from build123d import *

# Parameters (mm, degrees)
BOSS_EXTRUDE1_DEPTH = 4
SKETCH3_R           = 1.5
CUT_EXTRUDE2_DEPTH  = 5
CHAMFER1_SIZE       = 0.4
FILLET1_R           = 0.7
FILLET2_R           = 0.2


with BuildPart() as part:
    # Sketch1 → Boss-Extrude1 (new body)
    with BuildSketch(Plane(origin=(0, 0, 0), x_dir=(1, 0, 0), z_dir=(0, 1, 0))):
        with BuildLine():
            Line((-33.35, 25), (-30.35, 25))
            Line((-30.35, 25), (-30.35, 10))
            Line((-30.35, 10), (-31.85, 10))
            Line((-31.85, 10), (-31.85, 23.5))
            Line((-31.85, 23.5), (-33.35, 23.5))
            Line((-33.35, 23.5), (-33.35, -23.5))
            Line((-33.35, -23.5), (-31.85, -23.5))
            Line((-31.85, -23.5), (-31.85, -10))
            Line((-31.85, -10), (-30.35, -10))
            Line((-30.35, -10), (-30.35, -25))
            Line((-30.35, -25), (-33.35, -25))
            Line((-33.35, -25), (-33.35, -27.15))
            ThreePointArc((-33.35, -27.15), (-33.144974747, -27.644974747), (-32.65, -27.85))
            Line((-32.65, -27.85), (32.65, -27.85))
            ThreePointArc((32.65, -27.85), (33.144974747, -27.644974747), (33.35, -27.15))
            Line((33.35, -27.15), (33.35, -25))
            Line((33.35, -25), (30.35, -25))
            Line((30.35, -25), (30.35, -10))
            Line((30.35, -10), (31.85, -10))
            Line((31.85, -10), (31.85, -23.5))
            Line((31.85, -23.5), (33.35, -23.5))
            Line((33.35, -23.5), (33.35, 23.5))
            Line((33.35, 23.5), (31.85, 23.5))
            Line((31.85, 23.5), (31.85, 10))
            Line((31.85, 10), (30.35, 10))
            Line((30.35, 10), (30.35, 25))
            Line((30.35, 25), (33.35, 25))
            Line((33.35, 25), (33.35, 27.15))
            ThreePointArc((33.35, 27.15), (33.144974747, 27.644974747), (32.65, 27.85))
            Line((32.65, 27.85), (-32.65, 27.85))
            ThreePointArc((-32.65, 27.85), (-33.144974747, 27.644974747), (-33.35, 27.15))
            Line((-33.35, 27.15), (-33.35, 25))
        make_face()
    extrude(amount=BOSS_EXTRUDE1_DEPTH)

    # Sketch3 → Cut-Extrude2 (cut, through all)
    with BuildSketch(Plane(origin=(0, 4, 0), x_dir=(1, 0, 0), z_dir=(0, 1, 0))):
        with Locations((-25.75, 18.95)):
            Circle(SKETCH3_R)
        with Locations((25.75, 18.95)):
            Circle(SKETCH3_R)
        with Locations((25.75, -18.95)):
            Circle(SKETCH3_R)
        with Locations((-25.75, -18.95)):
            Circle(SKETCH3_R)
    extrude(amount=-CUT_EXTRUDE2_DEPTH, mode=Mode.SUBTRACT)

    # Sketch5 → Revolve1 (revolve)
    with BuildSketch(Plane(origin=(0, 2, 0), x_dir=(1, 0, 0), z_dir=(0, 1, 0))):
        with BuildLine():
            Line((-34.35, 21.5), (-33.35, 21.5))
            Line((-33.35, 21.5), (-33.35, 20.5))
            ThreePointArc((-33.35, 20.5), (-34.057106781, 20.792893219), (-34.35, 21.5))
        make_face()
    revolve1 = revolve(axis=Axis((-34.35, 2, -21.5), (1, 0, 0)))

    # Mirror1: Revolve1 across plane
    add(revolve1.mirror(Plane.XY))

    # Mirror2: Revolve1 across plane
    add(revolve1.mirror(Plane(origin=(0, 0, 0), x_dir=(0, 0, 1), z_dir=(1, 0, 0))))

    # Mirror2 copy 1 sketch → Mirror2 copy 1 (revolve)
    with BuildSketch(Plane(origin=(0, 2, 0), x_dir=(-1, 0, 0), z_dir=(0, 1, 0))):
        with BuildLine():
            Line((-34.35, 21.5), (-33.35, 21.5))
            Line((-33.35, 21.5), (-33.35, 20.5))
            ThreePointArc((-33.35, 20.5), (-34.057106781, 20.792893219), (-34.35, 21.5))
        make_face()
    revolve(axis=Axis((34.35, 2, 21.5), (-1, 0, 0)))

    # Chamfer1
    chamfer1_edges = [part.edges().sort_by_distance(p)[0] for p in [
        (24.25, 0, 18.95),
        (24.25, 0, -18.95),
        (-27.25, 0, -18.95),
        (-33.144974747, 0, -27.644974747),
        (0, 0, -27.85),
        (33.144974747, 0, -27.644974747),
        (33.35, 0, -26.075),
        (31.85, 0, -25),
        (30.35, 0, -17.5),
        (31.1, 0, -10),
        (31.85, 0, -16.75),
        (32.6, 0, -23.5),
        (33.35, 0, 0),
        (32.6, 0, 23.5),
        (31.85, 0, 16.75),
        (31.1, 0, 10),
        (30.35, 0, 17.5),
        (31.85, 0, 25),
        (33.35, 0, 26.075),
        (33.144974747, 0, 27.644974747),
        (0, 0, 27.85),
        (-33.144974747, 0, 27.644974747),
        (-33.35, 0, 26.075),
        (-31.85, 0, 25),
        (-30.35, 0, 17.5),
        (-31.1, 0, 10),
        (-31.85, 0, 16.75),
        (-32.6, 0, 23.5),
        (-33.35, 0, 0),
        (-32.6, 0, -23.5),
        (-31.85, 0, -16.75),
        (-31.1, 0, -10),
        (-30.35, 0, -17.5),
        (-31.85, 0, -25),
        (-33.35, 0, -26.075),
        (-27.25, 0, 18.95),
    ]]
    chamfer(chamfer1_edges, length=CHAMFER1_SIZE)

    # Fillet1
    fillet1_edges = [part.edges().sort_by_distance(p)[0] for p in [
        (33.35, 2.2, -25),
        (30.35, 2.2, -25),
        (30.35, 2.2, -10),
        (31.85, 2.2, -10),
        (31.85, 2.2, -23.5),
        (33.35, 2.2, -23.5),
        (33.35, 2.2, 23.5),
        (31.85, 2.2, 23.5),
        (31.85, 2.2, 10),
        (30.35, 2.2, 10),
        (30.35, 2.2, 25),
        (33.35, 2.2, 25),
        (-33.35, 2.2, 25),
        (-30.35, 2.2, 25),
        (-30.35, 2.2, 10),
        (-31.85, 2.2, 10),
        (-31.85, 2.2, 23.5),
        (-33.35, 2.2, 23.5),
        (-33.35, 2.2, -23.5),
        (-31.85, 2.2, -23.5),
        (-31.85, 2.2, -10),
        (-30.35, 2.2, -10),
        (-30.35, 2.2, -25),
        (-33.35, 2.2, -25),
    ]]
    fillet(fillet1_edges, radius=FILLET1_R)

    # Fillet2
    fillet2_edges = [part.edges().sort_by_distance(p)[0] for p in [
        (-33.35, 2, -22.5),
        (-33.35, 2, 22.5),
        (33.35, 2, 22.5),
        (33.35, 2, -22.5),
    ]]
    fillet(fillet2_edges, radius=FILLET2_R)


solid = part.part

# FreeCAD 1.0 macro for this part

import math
import FreeCAD as App
import Part
import Sketcher
from FreeCAD import Vector
Q = App.Units.Quantity


def edges_at(feature, points):
    """Names of the edges that pass closest to the given points."""
    edges = feature.Shape.Edges
    near = lambda p: min(range(len(edges)), key=lambda i: edges[i].distToShape(Part.Vertex(*p))[0])
    return sorted({f"Edge{near(p) + 1}" for p in points})

doc = App.newDocument("Part")
body = doc.addObject("PartDesign::Body", "Body")

# Sketch on XZ plane
sketch1 = body.newObject("Sketcher::SketchObject", "Sketch")
sketch1.AttachmentSupport = (doc.getObject("XZ_Plane"), [""])
sketch1.MapMode = "FlatFace"
sketch1.addGeometry(Part.LineSegment(Vector(-33.4, -25, 0), Vector(-30.4, -25, 0)), False)
sketch1.addGeometry(Part.LineSegment(Vector(-30.4, -25, 0), Vector(-30.4, -10, 0)), False)
sketch1.addGeometry(Part.LineSegment(Vector(-30.4, -10, 0), Vector(-31.9, -10, 0)), False)
sketch1.addGeometry(Part.LineSegment(Vector(-31.9, -10, 0), Vector(-31.9, -23.5, 0)), False)
sketch1.addGeometry(Part.LineSegment(Vector(-31.9, -23.5, 0), Vector(-33.4, -23.5, 0)), False)
sketch1.addGeometry(Part.LineSegment(Vector(-33.4, -23.5, 0), Vector(-33.4, 23.5, 0)), False)
sketch1.addGeometry(Part.LineSegment(Vector(-33.4, 23.5, 0), Vector(-31.9, 23.5, 0)), False)
sketch1.addGeometry(Part.LineSegment(Vector(-31.9, 23.5, 0), Vector(-31.9, 10, 0)), False)
sketch1.addGeometry(Part.LineSegment(Vector(-31.9, 10, 0), Vector(-30.4, 10, 0)), False)
sketch1.addGeometry(Part.LineSegment(Vector(-30.4, 10, 0), Vector(-30.4, 25, 0)), False)
sketch1.addGeometry(Part.LineSegment(Vector(-30.4, 25, 0), Vector(-33.4, 25, 0)), False)
sketch1.addGeometry(Part.LineSegment(Vector(-33.4, 25, 0), Vector(-33.4, 27.1, 0)), False)
sketch1.addGeometry(Part.ArcOfCircle(Part.Circle(Vector(-32.7, 27.2, 0), Vector(0, 0, 1), 0.7), math.radians(90), math.radians(180)), False)
sketch1.addGeometry(Part.LineSegment(Vector(-32.6, 27.9, 0), Vector(32.6, 27.9, 0)), False)
sketch1.addGeometry(Part.ArcOfCircle(Part.Circle(Vector(32.7, 27.2, 0), Vector(0, 0, 1), 0.7), math.radians(0), math.radians(90)), False)
sketch1.addGeometry(Part.LineSegment(Vector(33.4, 27.1, 0), Vector(33.4, 25, 0)), False)
sketch1.addGeometry(Part.LineSegment(Vector(33.4, 25, 0), Vector(30.4, 25, 0)), False)
sketch1.addGeometry(Part.LineSegment(Vector(30.4, 25, 0), Vector(30.4, 10, 0)), False)
sketch1.addGeometry(Part.LineSegment(Vector(30.4, 10, 0), Vector(31.9, 10, 0)), False)
sketch1.addGeometry(Part.LineSegment(Vector(31.9, 10, 0), Vector(31.9, 23.5, 0)), False)
sketch1.addGeometry(Part.LineSegment(Vector(31.9, 23.5, 0), Vector(33.4, 23.5, 0)), False)
sketch1.addGeometry(Part.LineSegment(Vector(33.4, 23.5, 0), Vector(33.4, -23.5, 0)), False)
sketch1.addGeometry(Part.LineSegment(Vector(33.4, -23.5, 0), Vector(31.9, -23.5, 0)), False)
sketch1.addGeometry(Part.LineSegment(Vector(31.9, -23.5, 0), Vector(31.9, -10, 0)), False)
sketch1.addGeometry(Part.LineSegment(Vector(31.9, -10, 0), Vector(30.4, -10, 0)), False)
sketch1.addGeometry(Part.LineSegment(Vector(30.4, -10, 0), Vector(30.4, -25, 0)), False)
sketch1.addGeometry(Part.LineSegment(Vector(30.4, -25, 0), Vector(33.4, -25, 0)), False)
sketch1.addGeometry(Part.LineSegment(Vector(33.4, -25, 0), Vector(33.4, -27.1, 0)), False)
sketch1.addGeometry(Part.ArcOfCircle(Part.Circle(Vector(32.7, -27.2, 0), Vector(0, 0, 1), 0.7), math.radians(-90), math.radians(0)), False)
sketch1.addGeometry(Part.LineSegment(Vector(32.6, -27.9, 0), Vector(-32.6, -27.9, 0)), False)
sketch1.addGeometry(Part.ArcOfCircle(Part.Circle(Vector(-32.7, -27.2, 0), Vector(0, 0, 1), 0.7), math.radians(180), math.radians(270)), False)
sketch1.addGeometry(Part.LineSegment(Vector(-33.4, -27.1, 0), Vector(-33.4, -25, 0)), False)
sketch1.addConstraint(Sketcher.Constraint("Coincident", 0, 2, 1, 1))
sketch1.addConstraint(Sketcher.Constraint("Coincident", 1, 2, 2, 1))
sketch1.addConstraint(Sketcher.Constraint("Coincident", 2, 2, 3, 1))
sketch1.addConstraint(Sketcher.Constraint("Coincident", 3, 2, 4, 1))
sketch1.addConstraint(Sketcher.Constraint("Coincident", 4, 2, 5, 1))
sketch1.addConstraint(Sketcher.Constraint("Coincident", 5, 2, 6, 1))
sketch1.addConstraint(Sketcher.Constraint("Coincident", 6, 2, 7, 1))
sketch1.addConstraint(Sketcher.Constraint("Coincident", 7, 2, 8, 1))
sketch1.addConstraint(Sketcher.Constraint("Coincident", 8, 2, 9, 1))
sketch1.addConstraint(Sketcher.Constraint("Coincident", 9, 2, 10, 1))
sketch1.addConstraint(Sketcher.Constraint("Coincident", 10, 2, 11, 1))
sketch1.addConstraint(Sketcher.Constraint("Tangent", 11, 2, 12, 2))
sketch1.addConstraint(Sketcher.Constraint("Tangent", 12, 1, 13, 1))
sketch1.addConstraint(Sketcher.Constraint("Tangent", 13, 2, 14, 2))
sketch1.addConstraint(Sketcher.Constraint("Tangent", 14, 1, 15, 1))
sketch1.addConstraint(Sketcher.Constraint("Coincident", 15, 2, 16, 1))
sketch1.addConstraint(Sketcher.Constraint("Coincident", 16, 2, 17, 1))
sketch1.addConstraint(Sketcher.Constraint("Coincident", 17, 2, 18, 1))
sketch1.addConstraint(Sketcher.Constraint("Coincident", 18, 2, 19, 1))
sketch1.addConstraint(Sketcher.Constraint("Coincident", 19, 2, 20, 1))
sketch1.addConstraint(Sketcher.Constraint("Coincident", 20, 2, 21, 1))
sketch1.addConstraint(Sketcher.Constraint("Coincident", 21, 2, 22, 1))
sketch1.addConstraint(Sketcher.Constraint("Coincident", 22, 2, 23, 1))
sketch1.addConstraint(Sketcher.Constraint("Coincident", 23, 2, 24, 1))
sketch1.addConstraint(Sketcher.Constraint("Coincident", 24, 2, 25, 1))
sketch1.addConstraint(Sketcher.Constraint("Coincident", 25, 2, 26, 1))
sketch1.addConstraint(Sketcher.Constraint("Coincident", 26, 2, 27, 1))
sketch1.addConstraint(Sketcher.Constraint("Tangent", 27, 2, 28, 2))
sketch1.addConstraint(Sketcher.Constraint("Tangent", 28, 1, 29, 1))
sketch1.addConstraint(Sketcher.Constraint("Tangent", 29, 2, 30, 2))
sketch1.addConstraint(Sketcher.Constraint("Tangent", 30, 1, 31, 1))
sketch1.addConstraint(Sketcher.Constraint("Coincident", 31, 2, 0, 1))
sketch1.addConstraint(Sketcher.Constraint("Horizontal", 0))
sketch1.addConstraint(Sketcher.Constraint("Vertical", 1))
sketch1.addConstraint(Sketcher.Constraint("Horizontal", 2))
sketch1.addConstraint(Sketcher.Constraint("Vertical", 3))
sketch1.addConstraint(Sketcher.Constraint("Horizontal", 4))
sketch1.addConstraint(Sketcher.Constraint("Vertical", 5))
sketch1.addConstraint(Sketcher.Constraint("Horizontal", 6))
sketch1.addConstraint(Sketcher.Constraint("Vertical", 7))
sketch1.addConstraint(Sketcher.Constraint("Horizontal", 8))
sketch1.addConstraint(Sketcher.Constraint("Vertical", 9))
sketch1.addConstraint(Sketcher.Constraint("Horizontal", 10))
sketch1.addConstraint(Sketcher.Constraint("Vertical", 11))
sketch1.addConstraint(Sketcher.Constraint("Horizontal", 13))
sketch1.addConstraint(Sketcher.Constraint("Vertical", 15))
sketch1.addConstraint(Sketcher.Constraint("Horizontal", 16))
sketch1.addConstraint(Sketcher.Constraint("Vertical", 17))
sketch1.addConstraint(Sketcher.Constraint("Horizontal", 18))
sketch1.addConstraint(Sketcher.Constraint("Vertical", 19))
sketch1.addConstraint(Sketcher.Constraint("Horizontal", 20))
sketch1.addConstraint(Sketcher.Constraint("Vertical", 21))
sketch1.addConstraint(Sketcher.Constraint("Horizontal", 22))
sketch1.addConstraint(Sketcher.Constraint("Vertical", 23))
sketch1.addConstraint(Sketcher.Constraint("Horizontal", 24))
sketch1.addConstraint(Sketcher.Constraint("Vertical", 25))
sketch1.addConstraint(Sketcher.Constraint("Horizontal", 26))
sketch1.addConstraint(Sketcher.Constraint("Vertical", 27))
sketch1.addConstraint(Sketcher.Constraint("Horizontal", 29))
sketch1.addConstraint(Sketcher.Constraint("Vertical", 31))
sketch1.addConstraint(Sketcher.Constraint("Equal", 12, 14))
sketch1.addConstraint(Sketcher.Constraint("Equal", 14, 28))
sketch1.addConstraint(Sketcher.Constraint("Equal", 28, 30))
sketch1.addConstraint(Sketcher.Constraint("Symmetric", 12, 3, 28, 3, -1, 1))
sketch1.addConstraint(Sketcher.Constraint("Symmetric", 0, 2, 16, 2, -1, 1))
sketch1.addConstraint(Sketcher.Constraint("Symmetric", 2, 2, 18, 2, -1, 1))
sketch1.addConstraint(Sketcher.Constraint("Symmetric", 4, 2, 20, 2, -1, 1))
sketch1.addConstraint(Sketcher.Constraint("Symmetric", 6, 2, 22, 2, -1, 1))
sketch1.addConstraint(Sketcher.Constraint("Symmetric", 8, 2, 24, 2, -1, 1))
sketch1.addConstraint(Sketcher.Constraint("Symmetric", 10, 2, 15, 2, -2))
sketch1.addConstraint(Sketcher.Constraint("Symmetric", 8, 2, 17, 2, -2))
sketch1.addConstraint(Sketcher.Constraint("Symmetric", 6, 2, 19, 2, -2))
sketch1.addConstraint(Sketcher.Constraint("Symmetric", 26, 2, 31, 2, -2))
sketch1.addConstraint(Sketcher.Constraint("Vertical", 5, 2, 10, 2))
sketch1.addConstraint(Sketcher.Constraint("Equal", 2, 4))
sketch1.addConstraint(Sketcher.Constraint("Radius", 12, Q("0.7 mm")))
sketch1.addConstraint(Sketcher.Constraint("DistanceX", 0, 1, 0, 2, Q("3 mm")))
sketch1.addConstraint(Sketcher.Constraint("DistanceY", 1, 1, 1, 2, Q("15 mm")))
sketch1.addConstraint(Sketcher.Constraint("DistanceY", 5, 1, 5, 2, Q("47 mm")))
sketch1.addConstraint(Sketcher.Constraint("DistanceX", 13, 1, 13, 2, Q("65.3 mm")))
sketch1.addConstraint(Sketcher.Constraint("DistanceY", 3, 2, 3, 1, Q("13.5 mm")))
sketch1.addConstraint(Sketcher.Constraint("DistanceY", 28, 3, 13, 2, Q("55 mm")))
pad1 = body.newObject("PartDesign::Pad", "Pad")
pad1.Profile = sketch1
pad1.Length = 4
pad1.Reversed = True

# Sketch on XZ plane
sketch2 = body.newObject("Sketcher::SketchObject", "Sketch001")
sketch2.AttachmentSupport = (doc.getObject("XZ_Plane"), [""])
sketch2.MapMode = "FlatFace"
sketch2.AttachmentOffset = App.Placement(Vector(0, 0, -4), App.Rotation())
sketch2.addGeometry(Part.Circle(Vector(-25.8, -18.9, 0), Vector(0, 0, 1), 1.5), False)
sketch2.addGeometry(Part.Circle(Vector(25.8, -18.9, 0), Vector(0, 0, 1), 1.5), False)
sketch2.addGeometry(Part.Circle(Vector(25.8, 18.9, 0), Vector(0, 0, 1), 1.5), False)
sketch2.addGeometry(Part.Circle(Vector(-25.8, 18.9, 0), Vector(0, 0, 1), 1.5), False)
sketch2.addConstraint(Sketcher.Constraint("Equal", 0, 1))
sketch2.addConstraint(Sketcher.Constraint("Equal", 1, 2))
sketch2.addConstraint(Sketcher.Constraint("Equal", 2, 3))
sketch2.addConstraint(Sketcher.Constraint("Symmetric", 0, 3, 2, 3, -1, 1))
sketch2.addConstraint(Sketcher.Constraint("Symmetric", 1, 3, 3, 3, -1, 1))
sketch2.addConstraint(Sketcher.Constraint("Symmetric", 0, 3, 1, 3, -2))
sketch2.addConstraint(Sketcher.Constraint("Diameter", 0, Q("3 mm")))
sketch2.addConstraint(Sketcher.Constraint("DistanceX", 0, 3, 1, 3, Q("51.5 mm")))
sketch2.addConstraint(Sketcher.Constraint("DistanceY", 1, 3, 2, 3, Q("37.9 mm")))
pocket1 = body.newObject("PartDesign::Pocket", "Pocket")
pocket1.Profile = sketch2
pocket1.Type = "ThroughAll"
pocket1.Reversed = True

# Sketch on XZ plane
sketch3 = body.newObject("Sketcher::SketchObject", "Sketch002")
sketch3.AttachmentSupport = (doc.getObject("XZ_Plane"), [""])
sketch3.MapMode = "FlatFace"
sketch3.AttachmentOffset = App.Placement(Vector(0, 0, -2), App.Rotation())
sketch3.addGeometry(Part.LineSegment(Vector(-33.4, -21.5, 0), Vector(-34.4, -21.5, 0)), False)
sketch3.addGeometry(Part.ArcOfCircle(Part.Circle(Vector(-33.3, -21.5, 0), Vector(0, 0, 1), 1), math.radians(90), math.radians(180)), False)
sketch3.addGeometry(Part.LineSegment(Vector(-33.4, -20.5, 0), Vector(-33.4, -21.5, 0)), False)
sketch3.addGeometry(Part.LineSegment(Vector(-34.4, -21.5, 0), Vector(-33.3, -21.5, 0)), True)  # axis
sketch3.addConstraint(Sketcher.Constraint("Coincident", 0, 2, 1, 2))
sketch3.addConstraint(Sketcher.Constraint("Coincident", 1, 1, 2, 1))
sketch3.addConstraint(Sketcher.Constraint("Coincident", 2, 2, 0, 1))
sketch3.addConstraint(Sketcher.Constraint("Horizontal", 0))
sketch3.addConstraint(Sketcher.Constraint("Vertical", 2))
sketch3.addConstraint(Sketcher.Constraint("Horizontal", 3))
sketch3.addConstraint(Sketcher.Constraint("Coincident", 2, 2, 1, 3))
sketch3.addConstraint(Sketcher.Constraint("Coincident", 3, 1, 0, 2))
sketch3.addConstraint(Sketcher.Constraint("Vertical", 1, 1, 3, 2))
sketch3.addConstraint(Sketcher.Constraint("Radius", 1, Q("1 mm")))
sketch3.addConstraint(Sketcher.Constraint("DistanceY", 1, 3, -1, 1, Q("21.5 mm")))
sketch3.addConstraint(Sketcher.Constraint("DistanceX", 1, 3, -1, 1, Q("33.35 mm")))
revolution = body.newObject("PartDesign::Revolution", "Revolution")
revolution.Profile = sketch3
revolution.ReferenceAxis = (sketch3, ["Axis0"])
revolution.Angle = 360
doc.recompute()

mirrored = body.newObject("PartDesign::Mirrored", "Mirrored")
mirrored.Originals = [revolution]
mirrored.MirrorPlane = (doc.getObject("XY_Plane"), [""])
body.Tip = mirrored
doc.recompute()

mirrored2 = body.newObject("PartDesign::Mirrored", "Mirrored001")
mirrored2.Originals = [revolution]
mirrored2.MirrorPlane = (doc.getObject("YZ_Plane"), [""])
body.Tip = mirrored2

# Sketch on XZ plane
sketch4 = body.newObject("Sketcher::SketchObject", "Sketch003")
sketch4.AttachmentSupport = (doc.getObject("XZ_Plane"), [""])
sketch4.MapMode = "FlatFace"
sketch4.AttachmentOffset = App.Placement(Vector(0, 0, -2), App.Rotation())
sketch4.addGeometry(Part.LineSegment(Vector(33.4, 21.5, 0), Vector(34.4, 21.5, 0)), False)
sketch4.addGeometry(Part.ArcOfCircle(Part.Circle(Vector(33.3, 21.5, 0), Vector(0, 0, 1), 1), math.radians(-90), math.radians(0)), False)
sketch4.addGeometry(Part.LineSegment(Vector(33.4, 20.5, 0), Vector(33.4, 21.5, 0)), False)
sketch4.addGeometry(Part.LineSegment(Vector(34.4, 21.5, 0), Vector(33.3, 21.5, 0)), True)  # axis
sketch4.addConstraint(Sketcher.Constraint("Coincident", 0, 2, 1, 2))
sketch4.addConstraint(Sketcher.Constraint("Coincident", 1, 1, 2, 1))
sketch4.addConstraint(Sketcher.Constraint("Coincident", 2, 2, 0, 1))
sketch4.addConstraint(Sketcher.Constraint("Horizontal", 0))
sketch4.addConstraint(Sketcher.Constraint("Vertical", 2))
sketch4.addConstraint(Sketcher.Constraint("Horizontal", 3))
sketch4.addConstraint(Sketcher.Constraint("Coincident", 2, 2, 1, 3))
sketch4.addConstraint(Sketcher.Constraint("Coincident", 3, 1, 0, 2))
sketch4.addConstraint(Sketcher.Constraint("Vertical", 1, 1, 3, 2))
sketch4.addConstraint(Sketcher.Constraint("Radius", 1, Q("1 mm")))
sketch4.addConstraint(Sketcher.Constraint("DistanceY", -1, 1, 1, 3, Q("21.5 mm")))
sketch4.addConstraint(Sketcher.Constraint("DistanceX", -1, 1, 1, 3, Q("33.35 mm")))
revolution2 = body.newObject("PartDesign::Revolution", "Revolution001")
revolution2.Profile = sketch4
revolution2.ReferenceAxis = (sketch4, ["Axis0"])
revolution2.Angle = 360
doc.recompute()

chamfer = body.newObject("PartDesign::Chamfer", "Chamfer")
chamfer.Base = (revolution2, edges_at(revolution2, [
    (24.25, 0, 18.95),
    (24.25, 0, -18.95),
    (-27.25, 0, -18.95),
    (-33.145, 0, -27.645),
    (0, 0, -27.85),
    (33.145, 0, -27.645),
    (33.35, 0, -26.075),
    (31.85, 0, -25),
    (30.35, 0, -17.5),
    (31.1, 0, -10),
    (31.85, 0, -16.75),
    (32.6, 0, -23.5),
    (33.35, 0, 0),
    (32.6, 0, 23.5),
    (31.85, 0, 16.75),
    (31.1, 0, 10),
    (30.35, 0, 17.5),
    (31.85, 0, 25),
    (33.35, 0, 26.075),
    (33.145, 0, 27.645),
    (0, 0, 27.85),
    (-33.145, 0, 27.645),
    (-33.35, 0, 26.075),
    (-31.85, 0, 25),
    (-30.35, 0, 17.5),
    (-31.1, 0, 10),
    (-31.85, 0, 16.75),
    (-32.6, 0, 23.5),
    (-33.35, 0, 0),
    (-32.6, 0, -23.5),
    (-31.85, 0, -16.75),
    (-31.1, 0, -10),
    (-30.35, 0, -17.5),
    (-31.85, 0, -25),
    (-33.35, 0, -26.075),
    (-27.25, 0, 18.95),
]))
chamfer.Size = 0.4
doc.recompute()

fillet = body.newObject("PartDesign::Fillet", "Fillet")
fillet.Base = (chamfer, edges_at(chamfer, [
    (33.35, 2.2, -25),
    (30.35, 2.2, -25),
    (30.35, 2.2, -10),
    (31.85, 2.2, -10),
    (31.85, 2.2, -23.5),
    (33.35, 2.2, -23.5),
    (33.35, 2.2, 23.5),
    (31.85, 2.2, 23.5),
    (31.85, 2.2, 10),
    (30.35, 2.2, 10),
    (30.35, 2.2, 25),
    (33.35, 2.2, 25),
    (-33.35, 2.2, 25),
    (-30.35, 2.2, 25),
    (-30.35, 2.2, 10),
    (-31.85, 2.2, 10),
    (-31.85, 2.2, 23.5),
    (-33.35, 2.2, 23.5),
    (-33.35, 2.2, -23.5),
    (-31.85, 2.2, -23.5),
    (-31.85, 2.2, -10),
    (-30.35, 2.2, -10),
    (-30.35, 2.2, -25),
    (-33.35, 2.2, -25),
]))
fillet.Radius = 0.7
doc.recompute()

fillet2 = body.newObject("PartDesign::Fillet", "Fillet001")
fillet2.Base = (fillet, edges_at(fillet, [
    (-33.35, 2, -22.5),
    (-33.35, 2, 22.5),
    (33.35, 2, 22.5),
    (33.35, 2, -22.5),
]))
fillet2.Radius = 0.2

doc.recompute()
